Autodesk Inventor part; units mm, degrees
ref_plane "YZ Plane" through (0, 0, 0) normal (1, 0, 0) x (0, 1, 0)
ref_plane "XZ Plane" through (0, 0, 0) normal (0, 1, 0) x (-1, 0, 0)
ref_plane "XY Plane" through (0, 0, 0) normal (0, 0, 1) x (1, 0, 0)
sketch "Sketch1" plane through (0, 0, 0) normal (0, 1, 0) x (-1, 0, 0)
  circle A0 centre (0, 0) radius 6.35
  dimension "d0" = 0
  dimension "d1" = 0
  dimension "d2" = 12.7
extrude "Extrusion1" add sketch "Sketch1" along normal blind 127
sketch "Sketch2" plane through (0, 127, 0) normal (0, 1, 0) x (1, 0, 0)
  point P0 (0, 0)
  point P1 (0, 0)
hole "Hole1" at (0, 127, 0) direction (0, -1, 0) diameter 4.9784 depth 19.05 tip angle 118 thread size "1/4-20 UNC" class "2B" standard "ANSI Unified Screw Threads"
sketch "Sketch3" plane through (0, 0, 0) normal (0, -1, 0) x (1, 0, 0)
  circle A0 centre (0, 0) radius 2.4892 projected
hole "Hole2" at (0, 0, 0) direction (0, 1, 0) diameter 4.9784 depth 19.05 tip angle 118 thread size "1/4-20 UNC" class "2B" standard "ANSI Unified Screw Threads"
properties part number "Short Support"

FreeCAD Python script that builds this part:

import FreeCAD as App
import Part
import Sketcher
from FreeCAD import Vector
Q = App.Units.Quantity

doc = App.newDocument("Part")
body = doc.addObject("PartDesign::Body", "Body")

# Sketch on XZ plane
sketch1 = body.newObject("Sketcher::SketchObject", "Sketch")
sketch1.AttachmentSupport = (doc.getObject("XZ_Plane"), [""])
sketch1.MapMode = "FlatFace"
sketch1.addGeometry(Part.Circle(Vector(0, 0, 0), Vector(0, 0, 1), 6), False)
sketch1.addConstraint([
    Sketcher.Constraint("Coincident", 0, 3, -1, 1),
    Sketcher.Constraint("Diameter", 0, Q("0.5 in")),
])
pad1 = body.newObject("PartDesign::Pad", "Pad")
pad1.Profile = sketch1
pad1.Length = Q("5 in")
pad1.Reversed = True

# Sketch on XZ plane
sketch2 = body.newObject("Sketcher::SketchObject", "Sketch001")
sketch2.AttachmentSupport = (doc.getObject("XZ_Plane"), [""])
sketch2.MapMode = "FlatFace"
sketch2.AttachmentOffset = App.Placement(Vector(0, 0, -5 * 25.4), App.Rotation())
sketch2.addGeometry(Part.Circle(Vector(0, 0, 0), Vector(0, 0, 1), 2.5), False)
sketch2.addConstraint([
    Sketcher.Constraint("Coincident", 0, 3, -1, 1),
    Sketcher.Constraint("Diameter", 0, Q("0.196 in")),
])
doc.recompute()
hole = body.newObject("PartDesign::Hole", "Hole")
hole.Profile = sketch2
hole.ThreadType = "None"
hole.Diameter = Q("0.196 in")
hole.DepthType = "Dimension"
hole.Depth = Q("0.75 in")
hole.DrillPoint = "Angled"
hole.DrillPointAngle = 118
hole.Reversed = True

# Sketch on XZ plane
sketch3 = body.newObject("Sketcher::SketchObject", "Sketch002")
sketch3.AttachmentSupport = (doc.getObject("XZ_Plane"), [""])
sketch3.MapMode = "FlatFace"
sketch3.addGeometry(Part.Circle(Vector(0, 0, 0), Vector(0, 0, 1), 2.5), False)
sketch3.addConstraint([
    Sketcher.Constraint("Coincident", 0, 3, -1, 1),
    Sketcher.Constraint("Diameter", 0, Q("0.196 in")),
])
doc.recompute()
hole2 = body.newObject("PartDesign::Hole", "Hole001")
hole2.Profile = sketch3
hole2.ThreadType = "None"
hole2.Diameter = Q("0.196 in")
hole2.DepthType = "Dimension"
hole2.Depth = Q("0.75 in")
hole2.DrillPoint = "Angled"
hole2.DrillPointAngle = 118

doc.recompute()
